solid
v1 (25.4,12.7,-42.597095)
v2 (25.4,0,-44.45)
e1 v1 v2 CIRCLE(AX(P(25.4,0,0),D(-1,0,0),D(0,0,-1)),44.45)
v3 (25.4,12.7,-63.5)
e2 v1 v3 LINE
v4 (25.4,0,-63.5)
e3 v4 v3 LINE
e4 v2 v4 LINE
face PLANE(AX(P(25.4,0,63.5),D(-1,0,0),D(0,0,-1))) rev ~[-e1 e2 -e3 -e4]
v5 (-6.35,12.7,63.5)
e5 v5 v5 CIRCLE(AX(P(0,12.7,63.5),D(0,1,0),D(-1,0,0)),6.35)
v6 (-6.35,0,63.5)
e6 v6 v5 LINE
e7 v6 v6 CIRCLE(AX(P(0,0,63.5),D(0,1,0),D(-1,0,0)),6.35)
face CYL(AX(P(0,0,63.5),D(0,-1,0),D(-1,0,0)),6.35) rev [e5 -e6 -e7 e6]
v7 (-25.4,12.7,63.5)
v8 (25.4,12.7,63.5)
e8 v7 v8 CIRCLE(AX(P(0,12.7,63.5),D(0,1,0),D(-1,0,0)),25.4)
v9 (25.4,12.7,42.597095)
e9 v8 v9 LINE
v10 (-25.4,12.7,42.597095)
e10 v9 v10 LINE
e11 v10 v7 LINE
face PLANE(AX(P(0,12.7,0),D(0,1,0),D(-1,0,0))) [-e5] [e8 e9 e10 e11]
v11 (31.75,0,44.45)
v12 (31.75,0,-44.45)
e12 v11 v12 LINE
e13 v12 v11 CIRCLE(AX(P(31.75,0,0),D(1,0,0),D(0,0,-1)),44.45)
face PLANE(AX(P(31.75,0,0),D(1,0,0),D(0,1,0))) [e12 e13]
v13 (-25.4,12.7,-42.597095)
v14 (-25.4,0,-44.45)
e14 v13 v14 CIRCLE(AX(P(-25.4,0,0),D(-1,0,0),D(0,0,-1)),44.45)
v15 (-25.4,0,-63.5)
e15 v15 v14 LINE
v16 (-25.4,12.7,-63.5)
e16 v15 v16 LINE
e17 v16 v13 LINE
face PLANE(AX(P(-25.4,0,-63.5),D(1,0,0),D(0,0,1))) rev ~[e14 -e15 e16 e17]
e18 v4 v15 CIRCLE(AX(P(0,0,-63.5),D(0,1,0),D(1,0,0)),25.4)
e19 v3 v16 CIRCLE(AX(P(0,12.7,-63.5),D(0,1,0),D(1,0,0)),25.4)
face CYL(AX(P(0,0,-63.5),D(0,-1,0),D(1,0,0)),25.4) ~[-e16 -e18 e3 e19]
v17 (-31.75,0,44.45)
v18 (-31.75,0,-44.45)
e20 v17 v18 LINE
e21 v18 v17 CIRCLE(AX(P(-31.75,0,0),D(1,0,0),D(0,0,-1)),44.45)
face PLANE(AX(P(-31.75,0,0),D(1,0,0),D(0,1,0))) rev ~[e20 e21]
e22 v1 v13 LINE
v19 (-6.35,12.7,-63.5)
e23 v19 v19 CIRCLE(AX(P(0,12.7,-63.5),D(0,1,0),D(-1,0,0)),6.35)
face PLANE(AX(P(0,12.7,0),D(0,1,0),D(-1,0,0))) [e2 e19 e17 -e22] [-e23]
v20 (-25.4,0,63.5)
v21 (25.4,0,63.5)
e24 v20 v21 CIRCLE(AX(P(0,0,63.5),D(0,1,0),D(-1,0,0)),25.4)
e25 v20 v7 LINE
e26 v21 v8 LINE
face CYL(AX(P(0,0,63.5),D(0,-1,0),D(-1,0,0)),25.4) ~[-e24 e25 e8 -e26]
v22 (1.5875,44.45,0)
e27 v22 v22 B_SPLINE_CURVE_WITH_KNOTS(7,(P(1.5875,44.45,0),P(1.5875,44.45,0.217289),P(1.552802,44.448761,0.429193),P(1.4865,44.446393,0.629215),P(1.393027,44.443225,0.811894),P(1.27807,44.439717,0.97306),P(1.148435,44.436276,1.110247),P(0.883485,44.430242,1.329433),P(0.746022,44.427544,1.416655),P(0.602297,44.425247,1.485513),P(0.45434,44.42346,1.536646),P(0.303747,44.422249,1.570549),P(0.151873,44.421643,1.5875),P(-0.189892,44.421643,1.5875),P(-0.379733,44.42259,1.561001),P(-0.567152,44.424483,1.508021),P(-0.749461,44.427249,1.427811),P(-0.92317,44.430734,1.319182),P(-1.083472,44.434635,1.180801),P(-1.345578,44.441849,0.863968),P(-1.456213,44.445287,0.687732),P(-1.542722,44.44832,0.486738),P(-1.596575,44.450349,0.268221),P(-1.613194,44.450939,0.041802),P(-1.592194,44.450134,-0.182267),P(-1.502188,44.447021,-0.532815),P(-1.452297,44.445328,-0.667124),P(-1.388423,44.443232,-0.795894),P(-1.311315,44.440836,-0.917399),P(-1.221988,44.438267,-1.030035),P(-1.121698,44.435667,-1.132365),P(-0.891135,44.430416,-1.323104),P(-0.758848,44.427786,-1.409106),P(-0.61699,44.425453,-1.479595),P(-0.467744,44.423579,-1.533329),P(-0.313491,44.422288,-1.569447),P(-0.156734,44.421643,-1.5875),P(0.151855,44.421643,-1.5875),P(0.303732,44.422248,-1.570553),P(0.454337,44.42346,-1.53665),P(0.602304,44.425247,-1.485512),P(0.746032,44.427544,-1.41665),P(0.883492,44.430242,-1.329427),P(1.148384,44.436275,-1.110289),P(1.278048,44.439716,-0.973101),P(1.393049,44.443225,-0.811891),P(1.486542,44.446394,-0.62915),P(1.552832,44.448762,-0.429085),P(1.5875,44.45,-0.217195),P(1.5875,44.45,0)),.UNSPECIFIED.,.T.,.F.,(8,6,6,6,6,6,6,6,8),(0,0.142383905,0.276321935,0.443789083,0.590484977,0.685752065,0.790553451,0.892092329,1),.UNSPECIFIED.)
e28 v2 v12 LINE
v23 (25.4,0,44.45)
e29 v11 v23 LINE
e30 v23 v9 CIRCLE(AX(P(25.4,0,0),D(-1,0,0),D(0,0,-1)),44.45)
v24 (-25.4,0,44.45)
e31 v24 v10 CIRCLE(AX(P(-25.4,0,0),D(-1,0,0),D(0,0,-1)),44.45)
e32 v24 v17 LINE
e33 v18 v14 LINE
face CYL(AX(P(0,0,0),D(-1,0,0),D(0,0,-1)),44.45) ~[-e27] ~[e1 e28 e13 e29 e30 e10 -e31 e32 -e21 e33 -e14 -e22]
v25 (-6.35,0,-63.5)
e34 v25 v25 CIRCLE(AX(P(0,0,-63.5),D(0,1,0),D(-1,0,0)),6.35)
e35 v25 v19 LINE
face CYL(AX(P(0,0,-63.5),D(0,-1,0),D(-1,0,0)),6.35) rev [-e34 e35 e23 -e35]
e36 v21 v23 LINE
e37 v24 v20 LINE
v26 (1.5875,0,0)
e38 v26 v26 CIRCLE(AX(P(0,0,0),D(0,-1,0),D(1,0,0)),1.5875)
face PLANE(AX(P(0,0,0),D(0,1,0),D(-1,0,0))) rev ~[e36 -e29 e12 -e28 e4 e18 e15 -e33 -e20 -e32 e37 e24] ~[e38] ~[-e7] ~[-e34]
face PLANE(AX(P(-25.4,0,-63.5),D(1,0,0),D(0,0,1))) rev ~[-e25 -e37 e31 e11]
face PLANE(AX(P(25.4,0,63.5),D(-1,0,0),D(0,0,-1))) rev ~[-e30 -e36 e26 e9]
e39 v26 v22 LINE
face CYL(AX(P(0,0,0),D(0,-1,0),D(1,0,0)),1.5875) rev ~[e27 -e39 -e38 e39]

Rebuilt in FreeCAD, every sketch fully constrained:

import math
import FreeCAD as App
import Part
import Sketcher

V = App.Vector
Q = App.Units.Quantity

doc = App.newDocument("Part")
params = doc.addObject("Spreadsheet::Sheet", "Params")
for row, (alias, value) in enumerate([
    ("sketch1_radius", "1 in"),
    ("sketch1_diameter", "0.5 in"),
    ("sketch1_height", "5 in"),
    ("pad1_length", "0.5 in"),
    ("sketch2_radius", "1.75 in"),
    ("pad2_length", "2.5 in"),
    ("sketch3_diameter", "0.125 in"),
], start=1):
    params.set(f"A{row}", alias)
    params.set(f"B{row}", "=" + value)
    params.setAlias(f"B{row}", alias)

body = doc.addObject("PartDesign::Body", "Body")

# Sketch on XZ plane
sketch1 = doc.addObject("Sketcher::SketchObject", "Sketch")
body.addObject(sketch1)
sketch1.AttachmentSupport = (doc.XZ_Plane, [""])
sketch1.MapMode = "FlatFace"
sketch1.addGeometry(Part.ArcOfCircle(Part.Circle(V(0, 64, 0), V(0, 0, 1), 25), math.radians(0), math.radians(180)), False)
sketch1.addGeometry(Part.LineSegment(V(25, 64, 0), V(25, -64, 0)), False)
sketch1.addGeometry(Part.ArcOfCircle(Part.Circle(V(0, -64, 0), V(0, 0, 1), 25), math.radians(180), math.radians(360)), False)
sketch1.addGeometry(Part.LineSegment(V(-25, -64, 0), V(-25, 64, 0)), False)
sketch1.addGeometry(Part.Circle(V(0, -64, 0), V(0, 0, 1), 6), False)
sketch1.addGeometry(Part.Circle(V(0, 64, 0), V(0, 0, 1), 6), False)
sketch1.addConstraint(Sketcher.Constraint("Tangent", 0, 1, 1, 1))
sketch1.addConstraint(Sketcher.Constraint("Tangent", 1, 2, 2, 2))
sketch1.addConstraint(Sketcher.Constraint("Tangent", 2, 1, 3, 1))
sketch1.addConstraint(Sketcher.Constraint("Tangent", 3, 2, 0, 2))
sketch1.addConstraint(Sketcher.Constraint("Vertical", 1))
sketch1.addConstraint(Sketcher.Constraint("Vertical", 3))
sketch1.addConstraint(Sketcher.Constraint("Coincident", 4, 3, 2, 3))
sketch1.addConstraint(Sketcher.Constraint("Coincident", 5, 3, 0, 3))
sketch1.addConstraint(Sketcher.Constraint("Equal", 4, 5))
sketch1.addConstraint(Sketcher.Constraint("Symmetric", 0, 3, 2, 3, -1, 1))
sketch1.addConstraint(Sketcher.Constraint("Radius", 0, Q("1 in")))
sketch1.addConstraint(Sketcher.Constraint("Diameter", 4, Q("0.5 in")))
sketch1.addConstraint(Sketcher.Constraint("DistanceY", 1, 2, 1, 1, Q("5 in")))
sketch1.setExpression("Constraints[10]", "Params.sketch1_radius")
sketch1.setExpression("Constraints[11]", "Params.sketch1_diameter")
sketch1.setExpression("Constraints[12]", "Params.sketch1_height")
pad1 = doc.addObject("PartDesign::Pad", "Pad")
body.addObject(pad1)
pad1.Profile = sketch1
pad1.setExpression("Length", "Params.pad1_length")
pad1.Reversed = True

# Sketch on YZ plane
sketch2 = doc.addObject("Sketcher::SketchObject", "Sketch001")
body.addObject(sketch2)
sketch2.AttachmentSupport = (doc.YZ_Plane, [""])
sketch2.MapMode = "FlatFace"
sketch2.addGeometry(Part.LineSegment(V(0, 44, 0), V(0, -44, 0)), False)
sketch2.addGeometry(Part.ArcOfCircle(Part.Circle(V(0, 0, 0), V(0, 0, 1), 44), math.radians(-90), math.radians(90)), False)
sketch2.addConstraint(Sketcher.Constraint("Coincident", 0, 1, 1, 2))
sketch2.addConstraint(Sketcher.Constraint("Coincident", 1, 1, 0, 2))
sketch2.addConstraint(Sketcher.Constraint("Vertical", 0))
sketch2.addConstraint(Sketcher.Constraint("Coincident", 1, 3, -1, 1))
sketch2.addConstraint(Sketcher.Constraint("PointOnObject", 0, 1, -2))
sketch2.addConstraint(Sketcher.Constraint("Radius", 1, Q("1.75 in")))
sketch2.setExpression("Constraints[5]", "Params.sketch2_radius")
pad2 = doc.addObject("PartDesign::Pad", "Pad001")
body.addObject(pad2)
pad2.Profile = sketch2
pad2.setExpression("Length", "Params.pad2_length")
pad2.Midplane = True

# Sketch on XZ plane
sketch3 = doc.addObject("Sketcher::SketchObject", "Sketch002")
body.addObject(sketch3)
sketch3.AttachmentSupport = (doc.XZ_Plane, [""])
sketch3.MapMode = "FlatFace"
sketch3.addGeometry(Part.Circle(V(0, 0, 0), V(0, 0, 1), 1.6), False)
sketch3.addConstraint(Sketcher.Constraint("Coincident", 0, 3, -1, 1))
sketch3.addConstraint(Sketcher.Constraint("Diameter", 0, Q("0.125 in")))
sketch3.setExpression("Constraints[1]", "Params.sketch3_diameter")
pocket1 = doc.addObject("PartDesign::Pocket", "Pocket")
body.addObject(pocket1)
pocket1.Profile = sketch3
pocket1.Type = "ThroughAll"

doc.recompute()
